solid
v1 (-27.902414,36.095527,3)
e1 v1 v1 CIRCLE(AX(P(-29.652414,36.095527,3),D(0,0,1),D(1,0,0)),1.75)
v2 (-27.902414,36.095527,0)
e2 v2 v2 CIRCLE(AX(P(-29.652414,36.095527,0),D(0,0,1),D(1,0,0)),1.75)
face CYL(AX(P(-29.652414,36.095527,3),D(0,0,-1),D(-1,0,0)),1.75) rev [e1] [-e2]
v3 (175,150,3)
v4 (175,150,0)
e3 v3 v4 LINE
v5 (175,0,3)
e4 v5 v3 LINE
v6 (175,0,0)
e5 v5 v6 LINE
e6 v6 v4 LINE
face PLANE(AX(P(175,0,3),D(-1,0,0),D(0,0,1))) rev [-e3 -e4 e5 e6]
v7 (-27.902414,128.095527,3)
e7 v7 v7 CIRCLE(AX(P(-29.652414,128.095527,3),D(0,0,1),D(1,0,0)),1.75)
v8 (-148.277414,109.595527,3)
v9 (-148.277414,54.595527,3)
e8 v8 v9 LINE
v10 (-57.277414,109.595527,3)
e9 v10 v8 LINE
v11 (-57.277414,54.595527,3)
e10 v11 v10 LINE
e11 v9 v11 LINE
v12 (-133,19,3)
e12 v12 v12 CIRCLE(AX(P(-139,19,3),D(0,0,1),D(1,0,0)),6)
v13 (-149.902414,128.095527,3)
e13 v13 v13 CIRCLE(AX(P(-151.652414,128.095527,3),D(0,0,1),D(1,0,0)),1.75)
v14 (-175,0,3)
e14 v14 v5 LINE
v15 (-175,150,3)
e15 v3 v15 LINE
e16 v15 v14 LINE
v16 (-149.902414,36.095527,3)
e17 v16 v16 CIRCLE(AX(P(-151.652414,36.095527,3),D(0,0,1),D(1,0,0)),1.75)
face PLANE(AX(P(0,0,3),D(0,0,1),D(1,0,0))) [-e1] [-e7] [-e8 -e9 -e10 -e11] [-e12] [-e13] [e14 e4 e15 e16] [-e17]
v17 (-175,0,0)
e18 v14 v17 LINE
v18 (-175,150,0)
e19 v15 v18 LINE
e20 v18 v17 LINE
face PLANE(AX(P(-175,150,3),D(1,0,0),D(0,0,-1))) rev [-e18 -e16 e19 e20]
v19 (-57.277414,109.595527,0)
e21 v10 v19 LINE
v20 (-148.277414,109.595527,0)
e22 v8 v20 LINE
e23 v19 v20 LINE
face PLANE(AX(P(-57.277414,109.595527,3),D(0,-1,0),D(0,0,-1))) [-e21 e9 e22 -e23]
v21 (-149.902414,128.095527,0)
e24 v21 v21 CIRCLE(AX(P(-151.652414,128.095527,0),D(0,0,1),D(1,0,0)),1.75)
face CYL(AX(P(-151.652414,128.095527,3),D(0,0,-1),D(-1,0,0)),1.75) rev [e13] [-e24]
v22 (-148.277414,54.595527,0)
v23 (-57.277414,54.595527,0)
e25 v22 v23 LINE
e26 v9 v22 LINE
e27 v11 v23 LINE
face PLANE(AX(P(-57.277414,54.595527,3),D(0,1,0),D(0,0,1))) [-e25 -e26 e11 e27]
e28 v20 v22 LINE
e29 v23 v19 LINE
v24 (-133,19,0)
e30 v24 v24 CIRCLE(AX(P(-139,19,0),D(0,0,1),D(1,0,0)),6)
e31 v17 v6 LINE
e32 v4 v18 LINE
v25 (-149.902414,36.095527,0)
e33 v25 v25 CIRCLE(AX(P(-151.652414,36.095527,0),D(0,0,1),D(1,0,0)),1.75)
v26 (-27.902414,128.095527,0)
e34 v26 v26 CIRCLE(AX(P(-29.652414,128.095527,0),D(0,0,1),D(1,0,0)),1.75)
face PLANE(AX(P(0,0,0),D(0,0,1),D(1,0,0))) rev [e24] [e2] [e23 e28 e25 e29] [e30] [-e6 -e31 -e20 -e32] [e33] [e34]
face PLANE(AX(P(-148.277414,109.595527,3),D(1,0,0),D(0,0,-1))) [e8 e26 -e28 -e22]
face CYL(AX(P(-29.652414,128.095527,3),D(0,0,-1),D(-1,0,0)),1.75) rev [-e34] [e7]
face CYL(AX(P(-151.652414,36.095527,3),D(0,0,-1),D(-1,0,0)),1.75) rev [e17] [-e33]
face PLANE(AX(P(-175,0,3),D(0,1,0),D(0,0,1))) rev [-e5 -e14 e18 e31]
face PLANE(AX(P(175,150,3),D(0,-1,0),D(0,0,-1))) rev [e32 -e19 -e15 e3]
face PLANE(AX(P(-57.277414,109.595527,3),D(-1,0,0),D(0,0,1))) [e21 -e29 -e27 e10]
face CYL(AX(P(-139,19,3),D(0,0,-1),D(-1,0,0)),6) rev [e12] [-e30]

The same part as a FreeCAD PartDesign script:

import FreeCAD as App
import Part
import Sketcher
from FreeCAD import Vector
Q = App.Units.Quantity


def add_polygon(sketch, points):
    """Adds a closed chain of lines whose ends are joined by coincident constraints."""
    first, n = sketch.GeometryCount, len(points)
    for a, b in zip(points, points[1:] + points[:1]):
        sketch.addGeometry(Part.LineSegment(App.Vector(*a, 0), App.Vector(*b, 0)), False)
    for i in range(n):
        sketch.addConstraint(Sketcher.Constraint("Coincident", first + i, 2, first + (i + 1) % n, 1))

doc = App.newDocument("Part")
body = doc.addObject("PartDesign::Body", "Body")

sketch1 = body.newObject("Sketcher::SketchObject", "Sketch")
sketch1.AttachmentSupport = (doc.getObject("XY_Plane"), [""])
sketch1.MapMode = "FlatFace"
add_polygon(sketch1, [(-175, 150), (-175, 0), (175, 0), (175, 150)])
sketch1.addGeometry(Part.Circle(Vector(-139, 19, 0), Vector(0, 0, 1), 6), False)
sketch1.addGeometry(Part.Circle(Vector(-151.7, 36.1, 0), Vector(0, 0, 1), 1.8), False)
sketch1.addGeometry(Part.Circle(Vector(-29.7, 36.1, 0), Vector(0, 0, 1), 1.8), False)
add_polygon(sketch1, [(-57.3, 54.6), (-148.3, 54.6), (-148.3, 109.6), (-57.3, 109.6)])
sketch1.addGeometry(Part.Circle(Vector(-151.7, 128.1, 0), Vector(0, 0, 1), 1.8), False)
sketch1.addGeometry(Part.Circle(Vector(-29.7, 128.1, 0), Vector(0, 0, 1), 1.8), False)
sketch1.addConstraint([
    Sketcher.Constraint("Vertical", 0),
    Sketcher.Constraint("Horizontal", 1),
    Sketcher.Constraint("Vertical", 2),
    Sketcher.Constraint("Horizontal", 3),
    Sketcher.Constraint("Horizontal", 7),
    Sketcher.Constraint("Vertical", 8),
    Sketcher.Constraint("Horizontal", 9),
    Sketcher.Constraint("Vertical", 10),
    Sketcher.Constraint("Equal", 5, 6),
    Sketcher.Constraint("Equal", 6, 11),
    Sketcher.Constraint("Equal", 11, 12),
    Sketcher.Constraint("Symmetric", 0, 2, 1, 2, -1, 1),
    Sketcher.Constraint("Horizontal", 5, 3, 6, 3),
    Sketcher.Constraint("Horizontal", 11, 3, 12, 3),
    Sketcher.Constraint("Vertical", 5, 3, 11, 3),
    Sketcher.Constraint("Vertical", 6, 3, 12, 3),
    Sketcher.Constraint("Diameter", 4, Q("12 mm")),
    Sketcher.Constraint("Diameter", 5, Q("3.5 mm")),
    Sketcher.Constraint("DistanceX", 1, 1, 1, 2, Q("350 mm")),
    Sketcher.Constraint("DistanceX", 7, 2, 7, 1, Q("91 mm")),
    Sketcher.Constraint("DistanceY", 0, 2, 0, 1, Q("150 mm")),
    Sketcher.Constraint("DistanceY", 8, 1, 8, 2, Q("55 mm")),
    Sketcher.Constraint("DistanceX", 4, 3, -1, 1, Q("139 mm")),
    Sketcher.Constraint("DistanceY", -1, 1, 4, 3, Q("19 mm")),
    Sketcher.Constraint("DistanceX", 5, 3, 6, 3, Q("122 mm")),
    Sketcher.Constraint("DistanceY", 5, 3, 11, 3, Q("92 mm")),
    Sketcher.Constraint("DistanceY", 5, 3, 7, 2, Q("18.5 mm")),
    Sketcher.Constraint("DistanceX", 5, 3, 7, 2, Q("3.375 mm")),
    Sketcher.Constraint("DistanceX", 5, 3, -1, 1, Q("151.652414 mm")),
    Sketcher.Constraint("DistanceY", -1, 1, 5, 3, Q("36.095527 mm")),
])
pad1 = body.newObject("PartDesign::Pad", "Pad")
pad1.Profile = sketch1
pad1.Length = 3

doc.recompute()
